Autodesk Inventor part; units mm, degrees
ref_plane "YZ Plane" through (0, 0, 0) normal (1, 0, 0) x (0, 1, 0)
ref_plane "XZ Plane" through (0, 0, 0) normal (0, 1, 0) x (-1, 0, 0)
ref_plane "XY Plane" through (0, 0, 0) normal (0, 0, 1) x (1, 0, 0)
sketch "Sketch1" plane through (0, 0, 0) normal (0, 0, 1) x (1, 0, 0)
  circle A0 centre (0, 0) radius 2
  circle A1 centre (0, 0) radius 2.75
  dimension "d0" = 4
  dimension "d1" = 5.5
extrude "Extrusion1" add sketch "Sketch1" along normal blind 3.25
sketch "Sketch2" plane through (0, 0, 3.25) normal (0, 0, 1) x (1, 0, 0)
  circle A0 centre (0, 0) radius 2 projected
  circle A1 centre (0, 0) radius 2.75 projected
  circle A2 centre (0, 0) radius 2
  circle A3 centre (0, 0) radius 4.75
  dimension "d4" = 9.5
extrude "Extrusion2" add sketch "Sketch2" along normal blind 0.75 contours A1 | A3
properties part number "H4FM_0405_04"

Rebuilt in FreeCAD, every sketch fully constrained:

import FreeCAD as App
import Part
import Sketcher
Q = App.Units.Quantity

doc = App.newDocument("Part")
body = doc.addObject("PartDesign::Body", "Body")

# Sketch on XY plane
sketch1 = body.newObject("Sketcher::SketchObject", "Sketch")
sketch1.AttachmentSupport = (doc.getObject("XY_Plane"), [""])
sketch1.MapMode = "FlatFace"
sketch1.addGeometry(Part.Circle(App.Vector(0, 0, 0), App.Vector(0, 0, 1), 2.75), False)
sketch1.addGeometry(Part.Circle(App.Vector(0, 0, 0), App.Vector(0, 0, 1), 2), False)
sketch1.addConstraint(Sketcher.Constraint("Coincident", 0, 3, -1, 1))
sketch1.addConstraint(Sketcher.Constraint("Coincident", 1, 3, -1, 1))
sketch1.addConstraint(Sketcher.Constraint("Diameter", 1, Q("4 mm")))
sketch1.addConstraint(Sketcher.Constraint("Diameter", 0, Q("5.5 mm")))
pad1 = body.newObject("PartDesign::Pad", "Pad")
pad1.Profile = sketch1
pad1.Length = 3.25

# Sketch on XY plane
sketch2 = body.newObject("Sketcher::SketchObject", "Sketch001")
sketch2.AttachmentSupport = (doc.getObject("XY_Plane"), [""])
sketch2.MapMode = "FlatFace"
sketch2.AttachmentOffset = App.Placement(App.Vector(0, 0, 3.25), App.Rotation())
sketch2.addGeometry(Part.Circle(App.Vector(0, 0, 0), App.Vector(0, 0, 1), 4.75), False)
sketch2.addGeometry(Part.Circle(App.Vector(0, 0, 0), App.Vector(0, 0, 1), 2), False)
sketch2.addConstraint(Sketcher.Constraint("Coincident", 0, 3, -1, 1))
sketch2.addConstraint(Sketcher.Constraint("Coincident", 1, 3, -1, 1))
sketch2.addConstraint(Sketcher.Constraint("Diameter", 0, Q("9.5 mm")))
sketch2.addConstraint(Sketcher.Constraint("Diameter", 1, Q("4 mm")))
pad2 = body.newObject("PartDesign::Pad", "Pad001")
pad2.Profile = sketch2
pad2.Length = 0.75

doc.recompute()
